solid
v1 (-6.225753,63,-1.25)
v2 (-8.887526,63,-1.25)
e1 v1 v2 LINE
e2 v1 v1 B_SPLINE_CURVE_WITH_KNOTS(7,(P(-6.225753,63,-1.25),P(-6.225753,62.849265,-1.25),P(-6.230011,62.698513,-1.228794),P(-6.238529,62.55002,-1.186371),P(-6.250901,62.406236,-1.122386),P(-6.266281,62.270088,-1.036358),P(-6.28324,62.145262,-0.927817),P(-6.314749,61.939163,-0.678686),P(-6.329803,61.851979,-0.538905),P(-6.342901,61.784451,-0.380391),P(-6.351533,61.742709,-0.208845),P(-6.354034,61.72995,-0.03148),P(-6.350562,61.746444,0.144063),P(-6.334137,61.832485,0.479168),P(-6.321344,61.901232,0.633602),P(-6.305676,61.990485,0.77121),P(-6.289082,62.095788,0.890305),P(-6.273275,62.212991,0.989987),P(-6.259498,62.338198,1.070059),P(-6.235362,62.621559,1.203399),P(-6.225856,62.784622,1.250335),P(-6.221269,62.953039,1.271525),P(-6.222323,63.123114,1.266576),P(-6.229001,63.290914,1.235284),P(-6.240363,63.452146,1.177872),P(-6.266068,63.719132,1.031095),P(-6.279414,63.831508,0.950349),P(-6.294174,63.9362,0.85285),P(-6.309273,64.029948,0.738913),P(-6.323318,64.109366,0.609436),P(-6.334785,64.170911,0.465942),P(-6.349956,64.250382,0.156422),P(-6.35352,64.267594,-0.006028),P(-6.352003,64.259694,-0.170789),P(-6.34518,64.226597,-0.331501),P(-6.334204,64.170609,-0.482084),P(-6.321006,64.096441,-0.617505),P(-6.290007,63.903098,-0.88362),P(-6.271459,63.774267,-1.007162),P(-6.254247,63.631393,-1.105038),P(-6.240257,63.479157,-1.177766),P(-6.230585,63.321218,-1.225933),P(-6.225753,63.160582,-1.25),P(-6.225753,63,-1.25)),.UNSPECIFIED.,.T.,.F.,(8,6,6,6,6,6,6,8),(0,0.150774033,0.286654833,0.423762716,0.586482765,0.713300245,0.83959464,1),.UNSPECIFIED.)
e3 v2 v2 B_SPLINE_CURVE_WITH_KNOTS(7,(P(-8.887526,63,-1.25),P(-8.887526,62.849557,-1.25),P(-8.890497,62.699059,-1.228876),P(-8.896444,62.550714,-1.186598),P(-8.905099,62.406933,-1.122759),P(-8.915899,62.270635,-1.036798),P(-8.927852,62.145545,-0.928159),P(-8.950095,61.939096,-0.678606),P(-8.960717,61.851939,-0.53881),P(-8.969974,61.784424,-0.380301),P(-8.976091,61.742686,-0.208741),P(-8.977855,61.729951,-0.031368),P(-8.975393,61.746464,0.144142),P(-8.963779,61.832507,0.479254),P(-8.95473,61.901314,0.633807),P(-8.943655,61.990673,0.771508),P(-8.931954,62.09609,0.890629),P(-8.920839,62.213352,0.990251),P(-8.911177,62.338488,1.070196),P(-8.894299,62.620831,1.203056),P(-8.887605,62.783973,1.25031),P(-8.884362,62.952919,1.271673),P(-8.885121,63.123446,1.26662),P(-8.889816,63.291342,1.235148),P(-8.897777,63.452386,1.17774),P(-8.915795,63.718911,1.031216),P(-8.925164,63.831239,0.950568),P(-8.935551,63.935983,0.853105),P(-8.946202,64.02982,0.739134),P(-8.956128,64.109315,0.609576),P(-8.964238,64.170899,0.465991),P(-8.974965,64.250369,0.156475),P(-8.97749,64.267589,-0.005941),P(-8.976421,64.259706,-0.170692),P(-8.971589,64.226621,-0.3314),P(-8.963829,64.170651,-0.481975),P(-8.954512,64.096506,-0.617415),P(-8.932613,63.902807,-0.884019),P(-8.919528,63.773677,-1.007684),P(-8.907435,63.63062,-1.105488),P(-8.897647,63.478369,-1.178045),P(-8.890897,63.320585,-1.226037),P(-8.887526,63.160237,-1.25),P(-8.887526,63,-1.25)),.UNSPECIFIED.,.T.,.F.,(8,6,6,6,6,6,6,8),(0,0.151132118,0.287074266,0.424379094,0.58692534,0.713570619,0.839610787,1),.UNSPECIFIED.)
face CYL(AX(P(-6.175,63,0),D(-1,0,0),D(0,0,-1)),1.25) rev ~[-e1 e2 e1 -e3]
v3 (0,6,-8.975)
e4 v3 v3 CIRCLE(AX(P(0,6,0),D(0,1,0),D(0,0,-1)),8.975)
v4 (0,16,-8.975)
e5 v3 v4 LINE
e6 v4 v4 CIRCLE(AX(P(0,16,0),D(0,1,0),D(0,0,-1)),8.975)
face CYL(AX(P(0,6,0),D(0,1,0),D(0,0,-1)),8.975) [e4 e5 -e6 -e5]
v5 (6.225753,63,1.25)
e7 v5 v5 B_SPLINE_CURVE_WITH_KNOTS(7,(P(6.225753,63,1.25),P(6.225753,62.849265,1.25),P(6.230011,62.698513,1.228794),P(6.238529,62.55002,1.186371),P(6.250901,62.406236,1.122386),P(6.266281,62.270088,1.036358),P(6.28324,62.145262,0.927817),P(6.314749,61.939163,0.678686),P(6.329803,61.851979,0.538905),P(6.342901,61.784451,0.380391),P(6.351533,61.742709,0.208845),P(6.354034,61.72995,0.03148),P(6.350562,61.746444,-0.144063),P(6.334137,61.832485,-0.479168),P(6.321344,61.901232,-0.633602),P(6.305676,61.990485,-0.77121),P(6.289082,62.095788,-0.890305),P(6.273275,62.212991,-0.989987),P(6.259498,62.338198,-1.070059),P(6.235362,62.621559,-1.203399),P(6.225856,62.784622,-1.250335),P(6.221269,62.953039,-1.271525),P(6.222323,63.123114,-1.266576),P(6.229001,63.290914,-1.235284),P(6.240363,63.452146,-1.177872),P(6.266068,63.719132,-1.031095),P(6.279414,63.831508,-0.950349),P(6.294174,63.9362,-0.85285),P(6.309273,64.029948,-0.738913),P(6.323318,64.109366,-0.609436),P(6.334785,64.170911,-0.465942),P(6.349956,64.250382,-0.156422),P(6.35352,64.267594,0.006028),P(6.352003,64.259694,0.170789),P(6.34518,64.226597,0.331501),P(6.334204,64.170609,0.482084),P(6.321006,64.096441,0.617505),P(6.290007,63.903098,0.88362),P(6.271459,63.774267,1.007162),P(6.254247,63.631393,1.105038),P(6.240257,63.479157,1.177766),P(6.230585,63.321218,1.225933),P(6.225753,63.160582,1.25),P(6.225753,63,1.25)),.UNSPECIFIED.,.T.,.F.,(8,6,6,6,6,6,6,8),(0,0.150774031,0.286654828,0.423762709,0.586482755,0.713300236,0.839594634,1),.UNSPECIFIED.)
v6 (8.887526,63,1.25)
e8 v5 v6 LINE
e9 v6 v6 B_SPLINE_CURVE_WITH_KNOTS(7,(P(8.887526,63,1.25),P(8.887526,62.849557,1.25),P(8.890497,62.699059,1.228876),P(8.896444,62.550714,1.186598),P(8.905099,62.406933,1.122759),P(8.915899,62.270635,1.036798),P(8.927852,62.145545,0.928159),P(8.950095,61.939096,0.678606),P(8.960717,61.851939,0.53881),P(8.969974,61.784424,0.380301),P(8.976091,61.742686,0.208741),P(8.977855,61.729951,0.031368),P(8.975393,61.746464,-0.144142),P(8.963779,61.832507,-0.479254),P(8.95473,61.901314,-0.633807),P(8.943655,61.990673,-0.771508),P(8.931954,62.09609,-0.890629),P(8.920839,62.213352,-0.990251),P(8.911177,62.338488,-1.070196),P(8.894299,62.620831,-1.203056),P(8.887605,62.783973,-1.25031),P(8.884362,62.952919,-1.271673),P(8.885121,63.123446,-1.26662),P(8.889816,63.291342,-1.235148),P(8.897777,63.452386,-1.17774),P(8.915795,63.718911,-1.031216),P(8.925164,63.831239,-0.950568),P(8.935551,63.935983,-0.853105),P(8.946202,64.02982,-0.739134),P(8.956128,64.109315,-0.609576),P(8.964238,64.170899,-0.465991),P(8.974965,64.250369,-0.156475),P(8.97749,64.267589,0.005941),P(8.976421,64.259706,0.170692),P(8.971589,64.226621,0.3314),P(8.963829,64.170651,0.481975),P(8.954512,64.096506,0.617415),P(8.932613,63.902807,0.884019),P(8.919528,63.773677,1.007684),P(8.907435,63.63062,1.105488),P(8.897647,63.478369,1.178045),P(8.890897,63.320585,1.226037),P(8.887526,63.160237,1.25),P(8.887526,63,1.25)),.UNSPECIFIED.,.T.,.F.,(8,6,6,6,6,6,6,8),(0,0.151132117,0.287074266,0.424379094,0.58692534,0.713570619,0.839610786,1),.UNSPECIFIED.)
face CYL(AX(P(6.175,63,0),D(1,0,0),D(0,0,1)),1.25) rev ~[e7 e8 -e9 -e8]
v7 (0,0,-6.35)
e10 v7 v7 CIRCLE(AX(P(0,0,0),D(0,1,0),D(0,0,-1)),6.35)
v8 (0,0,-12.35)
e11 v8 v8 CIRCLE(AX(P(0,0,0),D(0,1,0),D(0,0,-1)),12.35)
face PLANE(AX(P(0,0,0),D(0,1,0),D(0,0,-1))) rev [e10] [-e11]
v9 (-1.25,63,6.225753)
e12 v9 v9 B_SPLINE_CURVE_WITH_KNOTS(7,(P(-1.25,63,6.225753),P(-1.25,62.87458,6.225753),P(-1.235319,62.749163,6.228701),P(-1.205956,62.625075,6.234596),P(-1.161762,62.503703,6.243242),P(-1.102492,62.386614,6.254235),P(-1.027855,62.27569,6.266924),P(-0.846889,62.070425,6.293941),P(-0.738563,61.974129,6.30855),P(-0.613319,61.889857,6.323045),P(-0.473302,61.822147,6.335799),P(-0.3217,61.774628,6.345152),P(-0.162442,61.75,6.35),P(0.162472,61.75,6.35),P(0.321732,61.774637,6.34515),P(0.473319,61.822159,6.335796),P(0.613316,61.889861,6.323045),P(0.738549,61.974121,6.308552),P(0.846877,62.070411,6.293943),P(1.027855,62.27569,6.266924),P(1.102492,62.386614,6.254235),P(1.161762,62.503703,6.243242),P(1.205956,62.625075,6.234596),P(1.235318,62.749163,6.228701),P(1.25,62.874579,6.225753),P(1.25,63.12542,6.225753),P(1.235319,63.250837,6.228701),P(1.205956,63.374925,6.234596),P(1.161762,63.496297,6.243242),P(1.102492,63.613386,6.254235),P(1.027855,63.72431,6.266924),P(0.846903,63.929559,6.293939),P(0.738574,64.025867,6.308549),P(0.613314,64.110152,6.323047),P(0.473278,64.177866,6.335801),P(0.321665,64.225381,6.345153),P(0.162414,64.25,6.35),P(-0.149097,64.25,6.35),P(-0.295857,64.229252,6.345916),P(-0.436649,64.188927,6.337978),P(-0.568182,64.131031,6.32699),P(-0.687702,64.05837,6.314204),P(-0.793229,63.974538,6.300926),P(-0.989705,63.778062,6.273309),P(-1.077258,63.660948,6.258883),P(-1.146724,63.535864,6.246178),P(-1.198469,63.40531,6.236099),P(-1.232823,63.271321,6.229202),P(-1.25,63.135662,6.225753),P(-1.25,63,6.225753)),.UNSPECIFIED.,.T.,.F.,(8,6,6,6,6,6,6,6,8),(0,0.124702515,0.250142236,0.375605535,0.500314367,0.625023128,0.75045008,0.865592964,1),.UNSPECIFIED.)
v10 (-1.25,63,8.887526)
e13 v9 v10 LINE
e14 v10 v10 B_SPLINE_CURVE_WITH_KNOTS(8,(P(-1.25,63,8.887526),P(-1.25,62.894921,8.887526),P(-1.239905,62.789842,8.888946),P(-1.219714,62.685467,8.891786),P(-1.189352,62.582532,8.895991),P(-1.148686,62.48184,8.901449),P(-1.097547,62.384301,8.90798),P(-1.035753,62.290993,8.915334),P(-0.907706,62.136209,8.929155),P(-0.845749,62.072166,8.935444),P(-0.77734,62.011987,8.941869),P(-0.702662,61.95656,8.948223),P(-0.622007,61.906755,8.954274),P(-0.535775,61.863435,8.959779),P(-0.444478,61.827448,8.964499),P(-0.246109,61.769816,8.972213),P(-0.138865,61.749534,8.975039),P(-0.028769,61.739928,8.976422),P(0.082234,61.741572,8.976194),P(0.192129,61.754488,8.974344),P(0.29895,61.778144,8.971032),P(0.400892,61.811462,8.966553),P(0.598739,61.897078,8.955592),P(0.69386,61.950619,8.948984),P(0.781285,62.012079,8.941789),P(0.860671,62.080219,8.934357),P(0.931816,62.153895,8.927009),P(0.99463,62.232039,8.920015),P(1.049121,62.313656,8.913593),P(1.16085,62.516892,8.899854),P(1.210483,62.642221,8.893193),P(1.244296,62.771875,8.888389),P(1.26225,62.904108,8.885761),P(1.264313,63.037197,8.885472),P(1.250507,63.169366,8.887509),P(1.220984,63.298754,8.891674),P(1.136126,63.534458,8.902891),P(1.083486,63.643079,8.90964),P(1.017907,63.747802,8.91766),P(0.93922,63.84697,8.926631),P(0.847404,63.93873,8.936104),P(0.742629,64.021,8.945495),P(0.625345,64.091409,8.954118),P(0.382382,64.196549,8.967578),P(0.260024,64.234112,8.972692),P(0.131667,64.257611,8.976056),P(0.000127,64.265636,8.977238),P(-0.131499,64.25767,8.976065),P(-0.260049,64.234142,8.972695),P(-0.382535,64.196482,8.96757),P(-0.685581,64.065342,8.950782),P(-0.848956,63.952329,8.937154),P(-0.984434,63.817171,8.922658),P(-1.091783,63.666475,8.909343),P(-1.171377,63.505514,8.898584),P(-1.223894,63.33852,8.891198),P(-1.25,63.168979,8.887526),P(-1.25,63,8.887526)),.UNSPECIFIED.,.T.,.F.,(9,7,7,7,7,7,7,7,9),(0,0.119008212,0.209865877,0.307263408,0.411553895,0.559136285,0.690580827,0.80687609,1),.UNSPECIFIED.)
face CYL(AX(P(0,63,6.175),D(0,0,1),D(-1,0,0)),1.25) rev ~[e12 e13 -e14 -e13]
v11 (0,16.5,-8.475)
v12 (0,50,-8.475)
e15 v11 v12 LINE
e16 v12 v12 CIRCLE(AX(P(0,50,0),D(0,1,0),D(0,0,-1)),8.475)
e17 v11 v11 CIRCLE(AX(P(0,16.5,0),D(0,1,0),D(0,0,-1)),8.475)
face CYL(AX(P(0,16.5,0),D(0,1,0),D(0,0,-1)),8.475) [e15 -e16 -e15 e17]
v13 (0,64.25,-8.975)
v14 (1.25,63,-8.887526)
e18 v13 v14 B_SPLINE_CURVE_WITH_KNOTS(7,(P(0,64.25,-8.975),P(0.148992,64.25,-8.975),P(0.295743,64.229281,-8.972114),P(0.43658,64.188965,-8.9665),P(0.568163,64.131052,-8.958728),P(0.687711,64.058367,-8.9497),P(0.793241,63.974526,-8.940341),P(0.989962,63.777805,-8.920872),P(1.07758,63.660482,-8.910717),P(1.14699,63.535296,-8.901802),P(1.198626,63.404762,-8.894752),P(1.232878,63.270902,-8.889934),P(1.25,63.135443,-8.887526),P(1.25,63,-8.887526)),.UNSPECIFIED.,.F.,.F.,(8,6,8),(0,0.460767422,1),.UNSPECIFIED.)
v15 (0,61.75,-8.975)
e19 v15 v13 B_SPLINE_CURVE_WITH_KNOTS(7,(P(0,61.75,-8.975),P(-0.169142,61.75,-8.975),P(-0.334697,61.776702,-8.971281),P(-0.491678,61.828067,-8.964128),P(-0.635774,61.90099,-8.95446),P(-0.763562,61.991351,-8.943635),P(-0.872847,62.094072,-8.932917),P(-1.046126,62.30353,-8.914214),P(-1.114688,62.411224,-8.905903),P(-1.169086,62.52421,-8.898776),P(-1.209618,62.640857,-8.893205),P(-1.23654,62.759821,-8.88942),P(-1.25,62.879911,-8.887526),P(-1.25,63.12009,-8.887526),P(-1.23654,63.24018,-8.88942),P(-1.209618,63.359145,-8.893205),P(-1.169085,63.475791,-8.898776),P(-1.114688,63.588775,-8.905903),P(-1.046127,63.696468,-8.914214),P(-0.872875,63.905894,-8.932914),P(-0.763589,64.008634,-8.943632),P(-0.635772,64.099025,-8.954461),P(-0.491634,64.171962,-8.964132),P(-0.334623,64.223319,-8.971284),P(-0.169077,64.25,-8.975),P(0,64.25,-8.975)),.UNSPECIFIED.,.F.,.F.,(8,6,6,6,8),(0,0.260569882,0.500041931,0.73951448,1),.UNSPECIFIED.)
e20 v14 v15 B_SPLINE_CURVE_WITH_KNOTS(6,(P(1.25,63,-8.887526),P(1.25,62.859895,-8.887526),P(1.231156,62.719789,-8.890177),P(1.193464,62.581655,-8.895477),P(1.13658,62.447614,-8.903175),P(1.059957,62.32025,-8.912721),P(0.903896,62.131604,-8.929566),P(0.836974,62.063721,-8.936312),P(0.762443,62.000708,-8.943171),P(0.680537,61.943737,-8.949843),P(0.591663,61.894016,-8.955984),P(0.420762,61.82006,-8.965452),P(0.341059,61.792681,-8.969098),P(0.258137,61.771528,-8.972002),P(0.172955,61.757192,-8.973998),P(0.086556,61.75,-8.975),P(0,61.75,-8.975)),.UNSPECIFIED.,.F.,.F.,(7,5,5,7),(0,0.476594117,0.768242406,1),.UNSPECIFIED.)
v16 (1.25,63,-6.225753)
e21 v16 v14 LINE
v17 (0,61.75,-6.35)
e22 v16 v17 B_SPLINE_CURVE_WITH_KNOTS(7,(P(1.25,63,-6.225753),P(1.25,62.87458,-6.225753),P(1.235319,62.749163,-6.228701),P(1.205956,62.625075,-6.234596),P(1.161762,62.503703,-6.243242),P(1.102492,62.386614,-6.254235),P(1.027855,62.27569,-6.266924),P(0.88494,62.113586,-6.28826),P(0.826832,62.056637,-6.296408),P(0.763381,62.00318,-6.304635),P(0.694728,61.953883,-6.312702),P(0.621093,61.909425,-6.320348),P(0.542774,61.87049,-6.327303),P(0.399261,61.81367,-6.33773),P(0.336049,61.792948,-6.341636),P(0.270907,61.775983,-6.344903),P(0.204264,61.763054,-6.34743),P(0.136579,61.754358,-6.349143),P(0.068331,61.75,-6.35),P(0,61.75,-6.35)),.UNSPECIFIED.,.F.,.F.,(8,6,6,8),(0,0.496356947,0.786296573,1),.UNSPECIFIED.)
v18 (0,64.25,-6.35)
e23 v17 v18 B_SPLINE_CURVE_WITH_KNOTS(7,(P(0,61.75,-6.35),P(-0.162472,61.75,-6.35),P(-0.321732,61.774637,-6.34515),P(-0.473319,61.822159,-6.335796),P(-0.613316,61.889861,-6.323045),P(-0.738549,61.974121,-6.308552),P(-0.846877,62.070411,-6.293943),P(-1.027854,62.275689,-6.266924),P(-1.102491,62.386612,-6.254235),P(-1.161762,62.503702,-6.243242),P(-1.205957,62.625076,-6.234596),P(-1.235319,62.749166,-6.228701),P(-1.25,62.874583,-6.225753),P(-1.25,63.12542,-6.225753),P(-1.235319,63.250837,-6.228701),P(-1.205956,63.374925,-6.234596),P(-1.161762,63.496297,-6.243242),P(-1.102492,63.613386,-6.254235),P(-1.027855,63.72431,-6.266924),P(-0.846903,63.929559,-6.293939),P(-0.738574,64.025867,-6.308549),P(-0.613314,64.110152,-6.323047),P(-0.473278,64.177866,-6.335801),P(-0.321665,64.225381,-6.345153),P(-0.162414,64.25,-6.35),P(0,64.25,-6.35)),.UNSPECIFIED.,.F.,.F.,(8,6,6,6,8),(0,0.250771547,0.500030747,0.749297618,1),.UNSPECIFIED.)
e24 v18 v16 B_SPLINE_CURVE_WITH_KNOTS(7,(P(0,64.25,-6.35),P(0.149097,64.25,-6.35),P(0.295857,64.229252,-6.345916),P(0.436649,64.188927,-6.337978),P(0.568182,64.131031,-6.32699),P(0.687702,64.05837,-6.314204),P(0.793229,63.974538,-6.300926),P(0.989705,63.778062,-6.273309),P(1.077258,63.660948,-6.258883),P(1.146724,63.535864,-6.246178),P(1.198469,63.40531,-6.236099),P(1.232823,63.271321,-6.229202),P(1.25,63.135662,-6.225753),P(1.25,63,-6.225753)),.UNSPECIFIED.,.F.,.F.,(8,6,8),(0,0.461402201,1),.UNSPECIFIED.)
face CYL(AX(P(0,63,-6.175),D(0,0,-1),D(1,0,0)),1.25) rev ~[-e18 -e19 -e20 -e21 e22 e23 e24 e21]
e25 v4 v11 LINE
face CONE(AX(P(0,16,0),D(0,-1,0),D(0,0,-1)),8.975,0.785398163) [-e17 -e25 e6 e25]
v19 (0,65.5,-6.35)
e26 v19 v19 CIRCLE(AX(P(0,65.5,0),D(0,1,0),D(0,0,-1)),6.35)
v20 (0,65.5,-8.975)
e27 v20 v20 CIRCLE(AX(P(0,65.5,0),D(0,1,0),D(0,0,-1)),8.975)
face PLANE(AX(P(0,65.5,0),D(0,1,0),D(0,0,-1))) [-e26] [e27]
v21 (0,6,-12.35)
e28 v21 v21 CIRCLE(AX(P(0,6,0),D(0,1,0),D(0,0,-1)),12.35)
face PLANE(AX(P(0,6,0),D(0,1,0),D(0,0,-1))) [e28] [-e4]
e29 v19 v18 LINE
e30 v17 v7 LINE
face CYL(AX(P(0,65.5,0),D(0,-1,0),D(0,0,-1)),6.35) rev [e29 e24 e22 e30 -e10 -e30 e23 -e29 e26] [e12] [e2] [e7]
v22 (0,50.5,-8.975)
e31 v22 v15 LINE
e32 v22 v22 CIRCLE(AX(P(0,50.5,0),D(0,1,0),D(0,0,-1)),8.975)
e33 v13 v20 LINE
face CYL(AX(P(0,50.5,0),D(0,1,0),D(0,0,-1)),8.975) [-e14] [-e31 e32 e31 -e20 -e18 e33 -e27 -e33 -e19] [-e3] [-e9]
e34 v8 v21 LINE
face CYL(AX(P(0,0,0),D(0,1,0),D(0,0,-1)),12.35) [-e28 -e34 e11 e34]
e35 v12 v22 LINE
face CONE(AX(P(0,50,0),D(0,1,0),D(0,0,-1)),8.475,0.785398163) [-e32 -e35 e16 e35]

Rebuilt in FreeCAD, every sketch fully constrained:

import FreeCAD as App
import Part
import Sketcher

doc = App.newDocument("Part")
body = doc.addObject("PartDesign::Body", "Body")

# Sketch on XY plane
sketch1 = body.newObject("Sketcher::SketchObject", "Sketch")
sketch1.AttachmentSupport = (doc.getObject("XY_Plane"), [""])
sketch1.MapMode = "FlatFace"
sketch1.addGeometry(Part.LineSegment(App.Vector(6.35, 65.5, 0), App.Vector(6.35, 0, 0)), False)
sketch1.addGeometry(Part.LineSegment(App.Vector(6.35, 0, 0), App.Vector(12.35, 0, 0)), False)
sketch1.addGeometry(Part.LineSegment(App.Vector(12.35, 0, 0), App.Vector(12.35, 6, 0)), False)
sketch1.addGeometry(Part.LineSegment(App.Vector(12.35, 6, 0), App.Vector(8.975, 6, 0)), False)
sketch1.addGeometry(Part.LineSegment(App.Vector(8.975, 6, 0), App.Vector(8.975, 16, 0)), False)
sketch1.addGeometry(Part.LineSegment(App.Vector(8.975, 16, 0), App.Vector(8.475, 16.5, 0)), False)
sketch1.addGeometry(Part.LineSegment(App.Vector(8.475, 16.5, 0), App.Vector(8.475, 50, 0)), False)
sketch1.addGeometry(Part.LineSegment(App.Vector(8.475, 50, 0), App.Vector(8.975, 50.5, 0)), False)
sketch1.addGeometry(Part.LineSegment(App.Vector(8.975, 50.5, 0), App.Vector(8.975, 65.5, 0)), False)
sketch1.addGeometry(Part.LineSegment(App.Vector(8.975, 65.5, 0), App.Vector(6.35, 65.5, 0)), False)
sketch1.addConstraint(Sketcher.Constraint("Coincident", 0, 2, 1, 1))
sketch1.addConstraint(Sketcher.Constraint("Coincident", 1, 2, 2, 1))
sketch1.addConstraint(Sketcher.Constraint("Coincident", 2, 2, 3, 1))
sketch1.addConstraint(Sketcher.Constraint("Coincident", 3, 2, 4, 1))
sketch1.addConstraint(Sketcher.Constraint("Coincident", 4, 2, 5, 1))
sketch1.addConstraint(Sketcher.Constraint("Coincident", 5, 2, 6, 1))
sketch1.addConstraint(Sketcher.Constraint("Coincident", 6, 2, 7, 1))
sketch1.addConstraint(Sketcher.Constraint("Coincident", 7, 2, 8, 1))
sketch1.addConstraint(Sketcher.Constraint("Coincident", 8, 2, 9, 1))
sketch1.addConstraint(Sketcher.Constraint("Coincident", 9, 2, 0, 1))
sketch1.addConstraint(Sketcher.Constraint("Vertical", 0))
sketch1.addConstraint(Sketcher.Constraint("Horizontal", 1))
sketch1.addConstraint(Sketcher.Constraint("Vertical", 2))
sketch1.addConstraint(Sketcher.Constraint("Horizontal", 3))
sketch1.addConstraint(Sketcher.Constraint("Vertical", 4))
sketch1.addConstraint(Sketcher.Constraint("Vertical", 6))
sketch1.addConstraint(Sketcher.Constraint("Vertical", 8))
sketch1.addConstraint(Sketcher.Constraint("Horizontal", 9))
sketch1.addConstraint(Sketcher.Constraint("PointOnObject", 0, 2, -1))
sketch1.addConstraint(Sketcher.Constraint("Perpendicular", 5, 7))
sketch1.addConstraint(Sketcher.Constraint("Vertical", 4, 2, 7, 2))
sketch1.addConstraint(Sketcher.Constraint("Equal", 1, 2))
sketch1.addConstraint(Sketcher.Constraint("Equal", 5, 7))
sketch1.addConstraint(Sketcher.Constraint("DistanceX", 1, 1, 1, 2, 6.0))
sketch1.addConstraint(Sketcher.Constraint("DistanceY", 4, 1, 4, 2, 10.0))
sketch1.addConstraint(Sketcher.Constraint("DistanceY", 8, 1, 8, 2, 15.0))
sketch1.addConstraint(Sketcher.Constraint("DistanceY", 0, 2, 0, 1, 65.5))
sketch1.addConstraint(Sketcher.Constraint("DistanceY", 6, 1, 6, 2, 33.5))
sketch1.addConstraint(Sketcher.Constraint("DistanceX", 3, 2, 3, 1, 3.375))
sketch1.addConstraint(Sketcher.Constraint("DistanceX", -1, 1, 0, 2, 6.35))
revolution = body.newObject("PartDesign::Revolution", "Revolution")
revolution.Profile = sketch1
revolution.ReferenceAxis = (sketch1, ["V_Axis"])
revolution.Angle = 360

# Sketch on XZ plane
sketch2 = body.newObject("Sketcher::SketchObject", "Sketch001")
sketch2.AttachmentSupport = (doc.getObject("XZ_Plane"), [""])
sketch2.MapMode = "FlatFace"
sketch2.AttachmentOffset = App.Placement(App.Vector(0, 0, -63), App.Rotation())
sketch2.addGeometry(Part.LineSegment(App.Vector(12.35, 0, 0), App.Vector(0, 0, 0)), False)
sketch2.addGeometry(Part.LineSegment(App.Vector(0, 0, 0), App.Vector(0, 1.25, 0)), False)
sketch2.addGeometry(Part.LineSegment(App.Vector(0, 1.25, 0), App.Vector(12.35, 1.25, 0)), False)
sketch2.addGeometry(Part.LineSegment(App.Vector(12.35, 1.25, 0), App.Vector(12.35, 0, 0)), False)
sketch2.addConstraint(Sketcher.Constraint("Coincident", 0, 2, 1, 1))
sketch2.addConstraint(Sketcher.Constraint("Coincident", 1, 2, 2, 1))
sketch2.addConstraint(Sketcher.Constraint("Coincident", 2, 2, 3, 1))
sketch2.addConstraint(Sketcher.Constraint("Coincident", 3, 2, 0, 1))
sketch2.addConstraint(Sketcher.Constraint("Horizontal", 0))
sketch2.addConstraint(Sketcher.Constraint("Vertical", 1))
sketch2.addConstraint(Sketcher.Constraint("Horizontal", 2))
sketch2.addConstraint(Sketcher.Constraint("Vertical", 3))
sketch2.addConstraint(Sketcher.Constraint("Coincident", 0, 2, -1, 1))
sketch2.addConstraint(Sketcher.Constraint("DistanceX", 0, 2, 0, 1, 12.35))
sketch2.addConstraint(Sketcher.Constraint("DistanceY", 1, 1, 1, 2, 1.25))
groove = body.newObject("PartDesign::Groove", "Groove")
groove.Profile = sketch2
groove.ReferenceAxis = (sketch2, ["H_Axis"])
groove.Angle = 360
doc.recompute()

polarpattern = body.newObject("PartDesign::PolarPattern", "PolarPattern")
polarpattern.Originals = [groove]
polarpattern.Axis = (doc.getObject("Y_Axis"), [""])
polarpattern.Angle = 360
polarpattern.Occurrences = 4
body.Tip = polarpattern

doc.recompute()
